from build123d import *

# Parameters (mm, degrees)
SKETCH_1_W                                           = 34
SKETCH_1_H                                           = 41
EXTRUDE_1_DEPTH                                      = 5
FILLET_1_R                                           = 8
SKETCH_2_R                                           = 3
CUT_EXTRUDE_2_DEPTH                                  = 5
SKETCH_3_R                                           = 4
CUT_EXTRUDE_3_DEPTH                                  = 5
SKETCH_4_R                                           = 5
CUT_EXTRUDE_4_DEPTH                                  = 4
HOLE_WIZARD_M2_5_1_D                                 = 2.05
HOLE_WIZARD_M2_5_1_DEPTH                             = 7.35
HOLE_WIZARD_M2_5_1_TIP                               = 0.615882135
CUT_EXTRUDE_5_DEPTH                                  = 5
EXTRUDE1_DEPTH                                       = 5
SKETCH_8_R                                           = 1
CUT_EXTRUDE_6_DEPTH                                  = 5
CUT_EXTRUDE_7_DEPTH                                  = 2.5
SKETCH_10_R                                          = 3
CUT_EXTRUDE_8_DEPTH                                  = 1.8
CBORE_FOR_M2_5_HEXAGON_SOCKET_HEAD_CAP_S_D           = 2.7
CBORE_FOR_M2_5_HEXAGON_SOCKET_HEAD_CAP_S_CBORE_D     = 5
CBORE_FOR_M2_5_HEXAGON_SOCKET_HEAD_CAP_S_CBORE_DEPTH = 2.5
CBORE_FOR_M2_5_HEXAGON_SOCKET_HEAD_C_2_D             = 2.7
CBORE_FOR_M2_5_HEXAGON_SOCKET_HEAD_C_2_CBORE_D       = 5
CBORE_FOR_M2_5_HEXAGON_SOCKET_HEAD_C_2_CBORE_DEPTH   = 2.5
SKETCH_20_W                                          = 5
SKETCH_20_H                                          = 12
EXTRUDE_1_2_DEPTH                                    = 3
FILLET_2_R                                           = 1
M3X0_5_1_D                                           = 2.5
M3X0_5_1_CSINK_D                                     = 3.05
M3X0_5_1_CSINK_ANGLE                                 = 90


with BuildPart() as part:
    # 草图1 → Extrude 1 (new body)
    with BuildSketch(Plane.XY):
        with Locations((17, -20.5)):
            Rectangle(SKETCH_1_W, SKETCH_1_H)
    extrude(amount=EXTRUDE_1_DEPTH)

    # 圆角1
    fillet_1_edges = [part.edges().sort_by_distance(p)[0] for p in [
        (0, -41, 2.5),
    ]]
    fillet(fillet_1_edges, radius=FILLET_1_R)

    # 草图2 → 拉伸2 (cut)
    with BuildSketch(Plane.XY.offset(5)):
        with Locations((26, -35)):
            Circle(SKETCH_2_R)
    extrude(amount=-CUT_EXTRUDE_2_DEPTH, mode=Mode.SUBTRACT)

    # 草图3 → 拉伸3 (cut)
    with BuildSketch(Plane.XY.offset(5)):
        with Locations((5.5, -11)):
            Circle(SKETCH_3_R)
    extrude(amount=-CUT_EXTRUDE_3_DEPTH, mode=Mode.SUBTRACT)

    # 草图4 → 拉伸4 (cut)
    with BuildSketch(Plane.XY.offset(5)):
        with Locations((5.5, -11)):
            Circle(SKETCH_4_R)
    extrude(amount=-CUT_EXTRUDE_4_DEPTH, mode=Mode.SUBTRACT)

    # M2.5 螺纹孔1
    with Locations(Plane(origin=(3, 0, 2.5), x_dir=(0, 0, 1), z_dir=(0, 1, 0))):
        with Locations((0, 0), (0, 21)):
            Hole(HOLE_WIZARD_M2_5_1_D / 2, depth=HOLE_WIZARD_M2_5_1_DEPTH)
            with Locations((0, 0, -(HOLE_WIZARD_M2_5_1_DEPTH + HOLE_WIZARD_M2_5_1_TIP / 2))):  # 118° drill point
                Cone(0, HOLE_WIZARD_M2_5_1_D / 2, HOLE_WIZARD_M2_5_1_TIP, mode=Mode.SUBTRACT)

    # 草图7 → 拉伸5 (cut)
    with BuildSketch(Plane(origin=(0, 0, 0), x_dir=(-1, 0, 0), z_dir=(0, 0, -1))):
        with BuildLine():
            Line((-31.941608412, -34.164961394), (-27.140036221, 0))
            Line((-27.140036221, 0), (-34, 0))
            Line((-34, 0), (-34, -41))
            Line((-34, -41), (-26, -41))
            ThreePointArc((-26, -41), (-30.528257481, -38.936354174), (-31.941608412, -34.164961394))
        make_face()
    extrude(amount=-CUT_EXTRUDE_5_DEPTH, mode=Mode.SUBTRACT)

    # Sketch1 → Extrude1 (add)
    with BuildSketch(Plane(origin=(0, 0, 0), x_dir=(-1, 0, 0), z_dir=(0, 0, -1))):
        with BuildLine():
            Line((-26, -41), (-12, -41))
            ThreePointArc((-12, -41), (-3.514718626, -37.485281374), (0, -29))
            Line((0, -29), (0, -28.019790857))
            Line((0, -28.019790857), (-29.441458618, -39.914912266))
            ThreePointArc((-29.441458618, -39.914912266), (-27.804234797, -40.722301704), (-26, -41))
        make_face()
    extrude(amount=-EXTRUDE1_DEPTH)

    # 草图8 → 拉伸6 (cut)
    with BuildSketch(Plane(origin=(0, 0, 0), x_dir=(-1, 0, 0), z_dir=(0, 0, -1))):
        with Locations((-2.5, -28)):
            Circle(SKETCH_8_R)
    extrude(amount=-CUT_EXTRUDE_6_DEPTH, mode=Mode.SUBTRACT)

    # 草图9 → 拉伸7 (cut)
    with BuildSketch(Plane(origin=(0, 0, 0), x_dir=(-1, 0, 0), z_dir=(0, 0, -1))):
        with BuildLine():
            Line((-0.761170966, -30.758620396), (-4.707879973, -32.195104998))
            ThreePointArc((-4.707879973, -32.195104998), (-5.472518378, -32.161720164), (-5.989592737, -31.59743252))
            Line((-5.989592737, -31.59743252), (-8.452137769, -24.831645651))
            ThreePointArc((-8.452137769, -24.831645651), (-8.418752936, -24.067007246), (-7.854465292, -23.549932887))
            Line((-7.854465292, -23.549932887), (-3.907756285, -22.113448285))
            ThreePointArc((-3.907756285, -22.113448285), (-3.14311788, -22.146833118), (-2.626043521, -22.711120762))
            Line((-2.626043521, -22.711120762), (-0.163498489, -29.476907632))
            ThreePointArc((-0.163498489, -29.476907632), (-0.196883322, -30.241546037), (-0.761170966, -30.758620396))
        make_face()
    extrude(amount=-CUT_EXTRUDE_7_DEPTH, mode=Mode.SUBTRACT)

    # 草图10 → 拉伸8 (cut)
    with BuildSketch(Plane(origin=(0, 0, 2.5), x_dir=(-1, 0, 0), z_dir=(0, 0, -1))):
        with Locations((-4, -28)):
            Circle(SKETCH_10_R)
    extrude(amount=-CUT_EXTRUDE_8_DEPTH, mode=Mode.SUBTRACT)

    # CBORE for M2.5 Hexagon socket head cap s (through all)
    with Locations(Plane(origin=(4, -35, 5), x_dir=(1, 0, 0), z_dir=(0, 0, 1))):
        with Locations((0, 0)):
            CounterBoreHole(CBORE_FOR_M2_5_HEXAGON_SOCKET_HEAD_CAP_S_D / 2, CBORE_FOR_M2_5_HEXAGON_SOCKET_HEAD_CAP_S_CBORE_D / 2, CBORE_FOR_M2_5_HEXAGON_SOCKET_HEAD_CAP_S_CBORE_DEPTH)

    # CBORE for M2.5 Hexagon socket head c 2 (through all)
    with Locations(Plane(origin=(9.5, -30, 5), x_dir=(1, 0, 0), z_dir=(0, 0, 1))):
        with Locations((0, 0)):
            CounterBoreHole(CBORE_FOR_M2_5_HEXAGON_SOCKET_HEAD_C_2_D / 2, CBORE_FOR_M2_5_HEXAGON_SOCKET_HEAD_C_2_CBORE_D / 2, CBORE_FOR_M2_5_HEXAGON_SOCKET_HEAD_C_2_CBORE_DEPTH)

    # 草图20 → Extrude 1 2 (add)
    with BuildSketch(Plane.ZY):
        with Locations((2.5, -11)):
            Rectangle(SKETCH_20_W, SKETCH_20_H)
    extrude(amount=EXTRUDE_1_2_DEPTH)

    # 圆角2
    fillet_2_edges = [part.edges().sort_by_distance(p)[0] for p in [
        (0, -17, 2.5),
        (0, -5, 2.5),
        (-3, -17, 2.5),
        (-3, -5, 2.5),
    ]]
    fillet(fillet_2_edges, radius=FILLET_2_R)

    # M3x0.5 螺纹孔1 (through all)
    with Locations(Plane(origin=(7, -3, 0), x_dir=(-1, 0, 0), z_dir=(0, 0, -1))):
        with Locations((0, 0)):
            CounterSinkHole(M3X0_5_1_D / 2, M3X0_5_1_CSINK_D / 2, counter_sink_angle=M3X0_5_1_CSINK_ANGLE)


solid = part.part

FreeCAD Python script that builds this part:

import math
import FreeCAD as App
import Part
import Sketcher

V = App.Vector
Q = App.Units.Quantity


def edges_at(feature, points):
    """Names of the edges that pass closest to the given points."""
    edges = feature.Shape.Edges
    near = lambda p: min(range(len(edges)), key=lambda i: edges[i].distToShape(Part.Vertex(*p))[0])
    return sorted({f"Edge{near(p) + 1}" for p in points})


def add_polygon(sketch, points):
    """Adds a closed chain of lines whose ends are joined by coincident constraints."""
    first, n = sketch.GeometryCount, len(points)
    for a, b in zip(points, points[1:] + points[:1]):
        sketch.addGeometry(Part.LineSegment(App.Vector(*a, 0), App.Vector(*b, 0)), False)
    for i in range(n):
        sketch.addConstraint(Sketcher.Constraint("Coincident", first + i, 2, first + (i + 1) % n, 1))

doc = App.newDocument("Part")
body = doc.addObject("PartDesign::Body", "Body")

sketch1 = body.newObject("Sketcher::SketchObject", "Sketch")
sketch1.AttachmentSupport = (doc.getObject("XY_Plane"), [""])
sketch1.MapMode = "FlatFace"
add_polygon(sketch1, [(0, 0), (0, -41), (34, -41), (34, 0)])
sketch1.addConstraint(Sketcher.Constraint("Vertical", 0))
sketch1.addConstraint(Sketcher.Constraint("Horizontal", 1))
sketch1.addConstraint(Sketcher.Constraint("Vertical", 2))
sketch1.addConstraint(Sketcher.Constraint("Horizontal", 3))
sketch1.addConstraint(Sketcher.Constraint("Coincident", 3, 2, -1, 1))
sketch1.addConstraint(Sketcher.Constraint("DistanceX", 1, 1, 1, 2, 34.0))
sketch1.addConstraint(Sketcher.Constraint("DistanceY", 0, 2, 0, 1, 41.0))
pad1 = body.newObject("PartDesign::Pad", "Pad")
pad1.Profile = sketch1
pad1.Length = 5
doc.recompute()

fillet = body.newObject("PartDesign::Fillet", "Fillet")
fillet.Base = (pad1, edges_at(pad1, [(0, -41, 2.5)]))
fillet.Radius = 8

sketch2 = body.newObject("Sketcher::SketchObject", "Sketch001")
sketch2.AttachmentSupport = (doc.getObject("XY_Plane"), [""])
sketch2.MapMode = "FlatFace"
sketch2.AttachmentOffset = App.Placement(V(0, 0, 5), App.Rotation())
sketch2.addGeometry(Part.Circle(V(26, -35, 0), V(0, 0, 1), 3), False)
sketch2.addConstraint(Sketcher.Constraint("Diameter", 0, 6.0))
sketch2.addConstraint(Sketcher.Constraint("DistanceX", -1, 1, 0, 3, 26.0))
sketch2.addConstraint(Sketcher.Constraint("DistanceY", 0, 3, -1, 1, 35.0))
pocket1 = body.newObject("PartDesign::Pocket", "Pocket")
pocket1.Profile = sketch2
pocket1.Length = 5

sketch3 = body.newObject("Sketcher::SketchObject", "Sketch002")
sketch3.AttachmentSupport = (doc.getObject("XY_Plane"), [""])
sketch3.MapMode = "FlatFace"
sketch3.AttachmentOffset = App.Placement(V(0, 0, 5), App.Rotation())
sketch3.addGeometry(Part.Circle(V(5.5, -11, 0), V(0, 0, 1), 4), False)
sketch3.addConstraint(Sketcher.Constraint("Diameter", 0, 8.0))
sketch3.addConstraint(Sketcher.Constraint("DistanceY", 0, 3, -1, 1, 11.0))
sketch3.addConstraint(Sketcher.Constraint("DistanceX", -1, 1, 0, 3, 5.5))
pocket2 = body.newObject("PartDesign::Pocket", "Pocket001")
pocket2.Profile = sketch3
pocket2.Length = 5

sketch4 = body.newObject("Sketcher::SketchObject", "Sketch003")
sketch4.AttachmentSupport = (doc.getObject("XY_Plane"), [""])
sketch4.MapMode = "FlatFace"
sketch4.AttachmentOffset = App.Placement(V(0, 0, 5), App.Rotation())
sketch4.addGeometry(Part.Circle(V(6, -11, 0), V(0, 0, 1), 5), False)
sketch4.addConstraint(Sketcher.Constraint("Diameter", 0, 10.0))
sketch4.addConstraint(Sketcher.Constraint("DistanceY", 0, 3, -1, 1, 11.0))
sketch4.addConstraint(Sketcher.Constraint("DistanceX", -1, 1, 0, 3, 5.5))
pocket3 = body.newObject("PartDesign::Pocket", "Pocket002")
pocket3.Profile = sketch4
pocket3.Length = 4

sketch5 = body.newObject("Sketcher::SketchObject", "Sketch004")
sketch5.AttachmentSupport = (doc.getObject("XZ_Plane"), [""])
sketch5.MapMode = "FlatFace"
sketch5.addGeometry(Part.Circle(V(3, 2.5, 0), V(0, 0, 1), 1), False)
sketch5.addGeometry(Part.Circle(V(24, 2.5, 0), V(0, 0, 1), 1), False)
sketch5.addConstraint(Sketcher.Constraint("Equal", 0, 1))
sketch5.addConstraint(Sketcher.Constraint("Horizontal", 0, 3, 1, 3))
sketch5.addConstraint(Sketcher.Constraint("Diameter", 0, 2.05))
sketch5.addConstraint(Sketcher.Constraint("DistanceX", -1, 1, 0, 3, 3.0))
sketch5.addConstraint(Sketcher.Constraint("DistanceX", -1, 1, 1, 3, 24.0))
sketch5.addConstraint(Sketcher.Constraint("DistanceY", -1, 1, 0, 3, 2.5))
doc.recompute()
hole = body.newObject("PartDesign::Hole", "Hole")
hole.Profile = sketch5
hole.ThreadType = "None"
hole.Diameter = 2.05
hole.DepthType = "Dimension"
hole.Depth = 7.35
hole.DrillPoint = "Angled"
hole.DrillPointAngle = 118
hole.Reversed = True

sketch6 = body.newObject("Sketcher::SketchObject", "Sketch005")
sketch6.AttachmentSupport = (doc.getObject("XY_Plane"), [""])
sketch6.MapMode = "FlatFace"
sketch6.addGeometry(Part.LineSegment(V(32, -34, 0), V(27, 0, 0)), False)
sketch6.addGeometry(Part.LineSegment(V(27, 0, 0), V(34, 0, 0)), False)
sketch6.addGeometry(Part.LineSegment(V(34, 0, 0), V(34, -41, 0)), False)
sketch6.addGeometry(Part.LineSegment(V(34, -41, 0), V(26, -41, 0)), False)
sketch6.addGeometry(Part.ArcOfCircle(Part.Circle(V(26, -35, 0), V(0, 0, 1), 6), math.radians(-90), math.radians(8)), False)
sketch6.addConstraint(Sketcher.Constraint("Coincident", 0, 2, 1, 1))
sketch6.addConstraint(Sketcher.Constraint("Coincident", 1, 2, 2, 1))
sketch6.addConstraint(Sketcher.Constraint("Coincident", 2, 2, 3, 1))
sketch6.addConstraint(Sketcher.Constraint("Tangent", 3, 2, 4, 1))
sketch6.addConstraint(Sketcher.Constraint("Tangent", 4, 2, 0, 1))
sketch6.addConstraint(Sketcher.Constraint("Horizontal", 1))
sketch6.addConstraint(Sketcher.Constraint("Vertical", 2))
sketch6.addConstraint(Sketcher.Constraint("Horizontal", 3))
sketch6.addConstraint(Sketcher.Constraint("PointOnObject", 0, 2, -1))
sketch6.addConstraint(Sketcher.Constraint("Radius", 4, 6.0))
sketch6.addConstraint(Sketcher.Constraint("DistanceX", 3, 2, 3, 1, 8.0))
sketch6.addConstraint(Sketcher.Constraint("DistanceY", 2, 2, 2, 1, 41.0))
sketch6.addConstraint(Sketcher.Constraint("Angle", 0, Q("98 deg")))
sketch6.addConstraint(Sketcher.Constraint("DistanceX", -1, 1, 4, 3, 26.0))
pocket4 = body.newObject("PartDesign::Pocket", "Pocket003")
pocket4.Profile = sketch6
pocket4.Length = 5
pocket4.Reversed = True

sketch7 = body.newObject("Sketcher::SketchObject", "Sketch006")
sketch7.AttachmentSupport = (doc.getObject("XY_Plane"), [""])
sketch7.MapMode = "FlatFace"
sketch7.addGeometry(Part.LineSegment(V(26, -41, 0), V(12, -41, 0)), False)
sketch7.addGeometry(Part.ArcOfCircle(Part.Circle(V(12, -29, 0), V(0, 0, 1), 12), math.radians(-180), math.radians(-90)), False)
sketch7.addGeometry(Part.LineSegment(V(0, -29, 0), V(0, -28, 0)), False)
sketch7.addGeometry(Part.LineSegment(V(0, -28, 0), V(29.4, -39.9, 0)), False)
sketch7.addGeometry(Part.ArcOfCircle(Part.Circle(V(26, -35, 0), V(0, 0, 1), 6), math.radians(-90), math.radians(-55)), False)
sketch7.addConstraint(Sketcher.Constraint("Tangent", 0, 2, 1, 2))
sketch7.addConstraint(Sketcher.Constraint("Tangent", 1, 1, 2, 1))
sketch7.addConstraint(Sketcher.Constraint("Coincident", 2, 2, 3, 1))
sketch7.addConstraint(Sketcher.Constraint("Coincident", 3, 2, 4, 2))
sketch7.addConstraint(Sketcher.Constraint("Tangent", 4, 1, 0, 1))
sketch7.addConstraint(Sketcher.Constraint("Horizontal", 0))
sketch7.addConstraint(Sketcher.Constraint("Vertical", 2))
sketch7.addConstraint(Sketcher.Constraint("PointOnObject", 1, 1, -2))
sketch7.addConstraint(Sketcher.Constraint("Radius", 1, 12.0))
sketch7.addConstraint(Sketcher.Constraint("Radius", 4, 6.0))
sketch7.addConstraint(Sketcher.Constraint("DistanceX", 0, 2, 0, 1, 14.0))
sketch7.addConstraint(Sketcher.Constraint("Angle", 3, Q("-22 deg")))
sketch7.addConstraint(Sketcher.Constraint("DistanceY", 1, 3, -1, 1, 29.0))
sketch7.addConstraint(Sketcher.Constraint("DistanceY", 2, 1, 2, 2, 0.980209))
pad2 = body.newObject("PartDesign::Pad", "Pad001")
pad2.Profile = sketch7
pad2.Length = 5

sketch8 = body.newObject("Sketcher::SketchObject", "Sketch007")
sketch8.AttachmentSupport = (doc.getObject("XY_Plane"), [""])
sketch8.MapMode = "FlatFace"
sketch8.addGeometry(Part.Circle(V(2.5, -28, 0), V(0, 0, 1), 1), False)
sketch8.addConstraint(Sketcher.Constraint("Diameter", 0, 2.0))
sketch8.addConstraint(Sketcher.Constraint("DistanceY", 0, 3, -1, 1, 28.0))
sketch8.addConstraint(Sketcher.Constraint("DistanceX", -1, 1, 0, 3, 2.5))
pocket5 = body.newObject("PartDesign::Pocket", "Pocket004")
pocket5.Profile = sketch8
pocket5.Length = 5
pocket5.Reversed = True

sketch9 = body.newObject("Sketcher::SketchObject", "Sketch008")
sketch9.AttachmentSupport = (doc.getObject("XY_Plane"), [""])
sketch9.MapMode = "FlatFace"
sketch9.addGeometry(Part.LineSegment(V(4.7, -32.2, 0), V(0.8, -30.8, 0)), False)
sketch9.addGeometry(Part.ArcOfCircle(Part.Circle(V(1.1, -29.8, 0), V(0, 0, 1), 1), math.radians(160), math.radians(250)), False)
sketch9.addGeometry(Part.LineSegment(V(0.2, -29.5, 0), V(2.6, -22.7, 0)), False)
sketch9.addGeometry(Part.ArcOfCircle(Part.Circle(V(3.6, -23.1, 0), V(0, 0, 1), 1), math.radians(70), math.radians(160)), False)
sketch9.addGeometry(Part.LineSegment(V(3.9, -22.1, 0), V(7.9, -23.5, 0)), False)
sketch9.addGeometry(Part.ArcOfCircle(Part.Circle(V(7.5, -24.5, 0), V(0, 0, 1), 1), math.radians(-20), math.radians(70)), False)
sketch9.addGeometry(Part.LineSegment(V(8.5, -24.8, 0), V(6, -31.6, 0)), False)
sketch9.addGeometry(Part.ArcOfCircle(Part.Circle(V(5, -31.3, 0), V(0, 0, 1), 1), math.radians(-110), math.radians(-20)), False)
sketch9.addConstraint(Sketcher.Constraint("Tangent", 0, 2, 1, 2))
sketch9.addConstraint(Sketcher.Constraint("Tangent", 1, 1, 2, 1))
sketch9.addConstraint(Sketcher.Constraint("Tangent", 2, 2, 3, 2))
sketch9.addConstraint(Sketcher.Constraint("Tangent", 3, 1, 4, 1))
sketch9.addConstraint(Sketcher.Constraint("Tangent", 4, 2, 5, 2))
sketch9.addConstraint(Sketcher.Constraint("Tangent", 5, 1, 6, 1))
sketch9.addConstraint(Sketcher.Constraint("Tangent", 6, 2, 7, 2))
sketch9.addConstraint(Sketcher.Constraint("Tangent", 7, 1, 0, 1))
sketch9.addConstraint(Sketcher.Constraint("Equal", 1, 3))
sketch9.addConstraint(Sketcher.Constraint("Equal", 3, 5))
sketch9.addConstraint(Sketcher.Constraint("Equal", 5, 7))
sketch9.addConstraint(Sketcher.Constraint("Perpendicular", 0, 2))
sketch9.addConstraint(Sketcher.Constraint("Perpendicular", 2, 4))
sketch9.addConstraint(Sketcher.Constraint("Perpendicular", 4, 6))
sketch9.addConstraint(Sketcher.Constraint("Radius", 1, 1.0))
sketch9.addConstraint(Sketcher.Constraint("Angle", 0, Q("160 deg")))
sketch9.addConstraint(Sketcher.Constraint("Distance", 0, 4.2))
sketch9.addConstraint(Sketcher.Constraint("Distance", 2, 7.2))
sketch9.addConstraint(Sketcher.Constraint("DistanceX", -1, 1, 7, 3, 5.0499))
sketch9.addConstraint(Sketcher.Constraint("DistanceY", 3, 3, -1, 1, 23.053141))
pocket6 = body.newObject("PartDesign::Pocket", "Pocket005")
pocket6.Profile = sketch9
pocket6.Length = 2.5
pocket6.Reversed = True

sketch10 = body.newObject("Sketcher::SketchObject", "Sketch009")
sketch10.AttachmentSupport = (doc.getObject("XY_Plane"), [""])
sketch10.MapMode = "FlatFace"
sketch10.AttachmentOffset = App.Placement(V(0, 0, 2.5), App.Rotation())
sketch10.addGeometry(Part.Circle(V(4, -28, 0), V(0, 0, 1), 3), False)
sketch10.addConstraint(Sketcher.Constraint("Diameter", 0, 6.0))
sketch10.addConstraint(Sketcher.Constraint("DistanceX", -1, 1, 0, 3, 4.0))
sketch10.addConstraint(Sketcher.Constraint("DistanceY", 0, 3, -1, 1, 28.0))
pocket7 = body.newObject("PartDesign::Pocket", "Pocket006")
pocket7.Profile = sketch10
pocket7.Length = 1.8
pocket7.Reversed = True

sketch11 = body.newObject("Sketcher::SketchObject", "Sketch010")
sketch11.AttachmentSupport = (doc.getObject("XY_Plane"), [""])
sketch11.MapMode = "FlatFace"
sketch11.AttachmentOffset = App.Placement(V(0, 0, 5), App.Rotation())
sketch11.addGeometry(Part.Circle(V(4, -35, 0), V(0, 0, 1), 1.4), False)
sketch11.addConstraint(Sketcher.Constraint("Diameter", 0, 2.7))
sketch11.addConstraint(Sketcher.Constraint("DistanceX", -1, 1, 0, 3, 4.0))
sketch11.addConstraint(Sketcher.Constraint("DistanceY", 0, 3, -1, 1, 35.0))
doc.recompute()
hole2 = body.newObject("PartDesign::Hole", "Hole001")
hole2.Profile = sketch11
hole2.ThreadType = "None"
hole2.Diameter = 2.7
hole2.DepthType = "ThroughAll"
hole2.HoleCutType = "Counterbore"
hole2.HoleCutDiameter = 5
hole2.HoleCutDepth = 2.5

sketch12 = body.newObject("Sketcher::SketchObject", "Sketch011")
sketch12.AttachmentSupport = (doc.getObject("XY_Plane"), [""])
sketch12.MapMode = "FlatFace"
sketch12.AttachmentOffset = App.Placement(V(0, 0, 5), App.Rotation())
sketch12.addGeometry(Part.Circle(V(9.5, -30, 0), V(0, 0, 1), 1.4), False)
sketch12.addConstraint(Sketcher.Constraint("Diameter", 0, 2.7))
sketch12.addConstraint(Sketcher.Constraint("DistanceY", 0, 3, -1, 1, 30.0))
sketch12.addConstraint(Sketcher.Constraint("DistanceX", -1, 1, 0, 3, 9.5))
doc.recompute()
hole3 = body.newObject("PartDesign::Hole", "Hole002")
hole3.Profile = sketch12
hole3.ThreadType = "None"
hole3.Diameter = 2.7
hole3.DepthType = "ThroughAll"
hole3.HoleCutType = "Counterbore"
hole3.HoleCutDiameter = 5
hole3.HoleCutDepth = 2.5

sketch13 = body.newObject("Sketcher::SketchObject", "Sketch012")
sketch13.AttachmentSupport = (doc.getObject("YZ_Plane"), [""])
sketch13.MapMode = "FlatFace"
add_polygon(sketch13, [(-5, 0), (-17, 0), (-17, 5), (-5, 5)])
sketch13.addConstraint(Sketcher.Constraint("Horizontal", 0))
sketch13.addConstraint(Sketcher.Constraint("Vertical", 1))
sketch13.addConstraint(Sketcher.Constraint("Horizontal", 2))
sketch13.addConstraint(Sketcher.Constraint("Vertical", 3))
sketch13.addConstraint(Sketcher.Constraint("PointOnObject", 0, 2, -1))
sketch13.addConstraint(Sketcher.Constraint("DistanceX", 0, 2, 0, 1, 12.0))
sketch13.addConstraint(Sketcher.Constraint("DistanceY", 1, 1, 1, 2, 5.0))
sketch13.addConstraint(Sketcher.Constraint("DistanceX", 0, 2, -1, 1, 17.0))
pad3 = body.newObject("PartDesign::Pad", "Pad002")
pad3.Profile = sketch13
pad3.Length = 3
pad3.Reversed = True
doc.recompute()

fillet2 = body.newObject("PartDesign::Fillet", "Fillet001")
fillet2.Base = (pad3, edges_at(pad3, [
    (0, -17, 2.5),
    (0, -5, 2.5),
    (-3, -17, 2.5),
    (-3, -5, 2.5),
]))
fillet2.Radius = 1

sketch14 = body.newObject("Sketcher::SketchObject", "Sketch013")
sketch14.AttachmentSupport = (doc.getObject("XY_Plane"), [""])
sketch14.MapMode = "FlatFace"
sketch14.addGeometry(Part.Circle(V(7, -3, 0), V(0, 0, 1), 1.2), False)
sketch14.addConstraint(Sketcher.Constraint("Diameter", 0, 2.5))
sketch14.addConstraint(Sketcher.Constraint("DistanceX", -1, 1, 0, 3, 7.0))
sketch14.addConstraint(Sketcher.Constraint("DistanceY", 0, 3, -1, 1, 3.0))
doc.recompute()
hole4 = body.newObject("PartDesign::Hole", "Hole003")
hole4.Profile = sketch14
hole4.ThreadType = "None"
hole4.Diameter = 2.5
hole4.DepthType = "ThroughAll"
hole4.HoleCutType = "Countersink"
hole4.HoleCutDiameter = 3.05
hole4.HoleCutCountersinkAngle = 90
hole4.Reversed = True

doc.recompute()
